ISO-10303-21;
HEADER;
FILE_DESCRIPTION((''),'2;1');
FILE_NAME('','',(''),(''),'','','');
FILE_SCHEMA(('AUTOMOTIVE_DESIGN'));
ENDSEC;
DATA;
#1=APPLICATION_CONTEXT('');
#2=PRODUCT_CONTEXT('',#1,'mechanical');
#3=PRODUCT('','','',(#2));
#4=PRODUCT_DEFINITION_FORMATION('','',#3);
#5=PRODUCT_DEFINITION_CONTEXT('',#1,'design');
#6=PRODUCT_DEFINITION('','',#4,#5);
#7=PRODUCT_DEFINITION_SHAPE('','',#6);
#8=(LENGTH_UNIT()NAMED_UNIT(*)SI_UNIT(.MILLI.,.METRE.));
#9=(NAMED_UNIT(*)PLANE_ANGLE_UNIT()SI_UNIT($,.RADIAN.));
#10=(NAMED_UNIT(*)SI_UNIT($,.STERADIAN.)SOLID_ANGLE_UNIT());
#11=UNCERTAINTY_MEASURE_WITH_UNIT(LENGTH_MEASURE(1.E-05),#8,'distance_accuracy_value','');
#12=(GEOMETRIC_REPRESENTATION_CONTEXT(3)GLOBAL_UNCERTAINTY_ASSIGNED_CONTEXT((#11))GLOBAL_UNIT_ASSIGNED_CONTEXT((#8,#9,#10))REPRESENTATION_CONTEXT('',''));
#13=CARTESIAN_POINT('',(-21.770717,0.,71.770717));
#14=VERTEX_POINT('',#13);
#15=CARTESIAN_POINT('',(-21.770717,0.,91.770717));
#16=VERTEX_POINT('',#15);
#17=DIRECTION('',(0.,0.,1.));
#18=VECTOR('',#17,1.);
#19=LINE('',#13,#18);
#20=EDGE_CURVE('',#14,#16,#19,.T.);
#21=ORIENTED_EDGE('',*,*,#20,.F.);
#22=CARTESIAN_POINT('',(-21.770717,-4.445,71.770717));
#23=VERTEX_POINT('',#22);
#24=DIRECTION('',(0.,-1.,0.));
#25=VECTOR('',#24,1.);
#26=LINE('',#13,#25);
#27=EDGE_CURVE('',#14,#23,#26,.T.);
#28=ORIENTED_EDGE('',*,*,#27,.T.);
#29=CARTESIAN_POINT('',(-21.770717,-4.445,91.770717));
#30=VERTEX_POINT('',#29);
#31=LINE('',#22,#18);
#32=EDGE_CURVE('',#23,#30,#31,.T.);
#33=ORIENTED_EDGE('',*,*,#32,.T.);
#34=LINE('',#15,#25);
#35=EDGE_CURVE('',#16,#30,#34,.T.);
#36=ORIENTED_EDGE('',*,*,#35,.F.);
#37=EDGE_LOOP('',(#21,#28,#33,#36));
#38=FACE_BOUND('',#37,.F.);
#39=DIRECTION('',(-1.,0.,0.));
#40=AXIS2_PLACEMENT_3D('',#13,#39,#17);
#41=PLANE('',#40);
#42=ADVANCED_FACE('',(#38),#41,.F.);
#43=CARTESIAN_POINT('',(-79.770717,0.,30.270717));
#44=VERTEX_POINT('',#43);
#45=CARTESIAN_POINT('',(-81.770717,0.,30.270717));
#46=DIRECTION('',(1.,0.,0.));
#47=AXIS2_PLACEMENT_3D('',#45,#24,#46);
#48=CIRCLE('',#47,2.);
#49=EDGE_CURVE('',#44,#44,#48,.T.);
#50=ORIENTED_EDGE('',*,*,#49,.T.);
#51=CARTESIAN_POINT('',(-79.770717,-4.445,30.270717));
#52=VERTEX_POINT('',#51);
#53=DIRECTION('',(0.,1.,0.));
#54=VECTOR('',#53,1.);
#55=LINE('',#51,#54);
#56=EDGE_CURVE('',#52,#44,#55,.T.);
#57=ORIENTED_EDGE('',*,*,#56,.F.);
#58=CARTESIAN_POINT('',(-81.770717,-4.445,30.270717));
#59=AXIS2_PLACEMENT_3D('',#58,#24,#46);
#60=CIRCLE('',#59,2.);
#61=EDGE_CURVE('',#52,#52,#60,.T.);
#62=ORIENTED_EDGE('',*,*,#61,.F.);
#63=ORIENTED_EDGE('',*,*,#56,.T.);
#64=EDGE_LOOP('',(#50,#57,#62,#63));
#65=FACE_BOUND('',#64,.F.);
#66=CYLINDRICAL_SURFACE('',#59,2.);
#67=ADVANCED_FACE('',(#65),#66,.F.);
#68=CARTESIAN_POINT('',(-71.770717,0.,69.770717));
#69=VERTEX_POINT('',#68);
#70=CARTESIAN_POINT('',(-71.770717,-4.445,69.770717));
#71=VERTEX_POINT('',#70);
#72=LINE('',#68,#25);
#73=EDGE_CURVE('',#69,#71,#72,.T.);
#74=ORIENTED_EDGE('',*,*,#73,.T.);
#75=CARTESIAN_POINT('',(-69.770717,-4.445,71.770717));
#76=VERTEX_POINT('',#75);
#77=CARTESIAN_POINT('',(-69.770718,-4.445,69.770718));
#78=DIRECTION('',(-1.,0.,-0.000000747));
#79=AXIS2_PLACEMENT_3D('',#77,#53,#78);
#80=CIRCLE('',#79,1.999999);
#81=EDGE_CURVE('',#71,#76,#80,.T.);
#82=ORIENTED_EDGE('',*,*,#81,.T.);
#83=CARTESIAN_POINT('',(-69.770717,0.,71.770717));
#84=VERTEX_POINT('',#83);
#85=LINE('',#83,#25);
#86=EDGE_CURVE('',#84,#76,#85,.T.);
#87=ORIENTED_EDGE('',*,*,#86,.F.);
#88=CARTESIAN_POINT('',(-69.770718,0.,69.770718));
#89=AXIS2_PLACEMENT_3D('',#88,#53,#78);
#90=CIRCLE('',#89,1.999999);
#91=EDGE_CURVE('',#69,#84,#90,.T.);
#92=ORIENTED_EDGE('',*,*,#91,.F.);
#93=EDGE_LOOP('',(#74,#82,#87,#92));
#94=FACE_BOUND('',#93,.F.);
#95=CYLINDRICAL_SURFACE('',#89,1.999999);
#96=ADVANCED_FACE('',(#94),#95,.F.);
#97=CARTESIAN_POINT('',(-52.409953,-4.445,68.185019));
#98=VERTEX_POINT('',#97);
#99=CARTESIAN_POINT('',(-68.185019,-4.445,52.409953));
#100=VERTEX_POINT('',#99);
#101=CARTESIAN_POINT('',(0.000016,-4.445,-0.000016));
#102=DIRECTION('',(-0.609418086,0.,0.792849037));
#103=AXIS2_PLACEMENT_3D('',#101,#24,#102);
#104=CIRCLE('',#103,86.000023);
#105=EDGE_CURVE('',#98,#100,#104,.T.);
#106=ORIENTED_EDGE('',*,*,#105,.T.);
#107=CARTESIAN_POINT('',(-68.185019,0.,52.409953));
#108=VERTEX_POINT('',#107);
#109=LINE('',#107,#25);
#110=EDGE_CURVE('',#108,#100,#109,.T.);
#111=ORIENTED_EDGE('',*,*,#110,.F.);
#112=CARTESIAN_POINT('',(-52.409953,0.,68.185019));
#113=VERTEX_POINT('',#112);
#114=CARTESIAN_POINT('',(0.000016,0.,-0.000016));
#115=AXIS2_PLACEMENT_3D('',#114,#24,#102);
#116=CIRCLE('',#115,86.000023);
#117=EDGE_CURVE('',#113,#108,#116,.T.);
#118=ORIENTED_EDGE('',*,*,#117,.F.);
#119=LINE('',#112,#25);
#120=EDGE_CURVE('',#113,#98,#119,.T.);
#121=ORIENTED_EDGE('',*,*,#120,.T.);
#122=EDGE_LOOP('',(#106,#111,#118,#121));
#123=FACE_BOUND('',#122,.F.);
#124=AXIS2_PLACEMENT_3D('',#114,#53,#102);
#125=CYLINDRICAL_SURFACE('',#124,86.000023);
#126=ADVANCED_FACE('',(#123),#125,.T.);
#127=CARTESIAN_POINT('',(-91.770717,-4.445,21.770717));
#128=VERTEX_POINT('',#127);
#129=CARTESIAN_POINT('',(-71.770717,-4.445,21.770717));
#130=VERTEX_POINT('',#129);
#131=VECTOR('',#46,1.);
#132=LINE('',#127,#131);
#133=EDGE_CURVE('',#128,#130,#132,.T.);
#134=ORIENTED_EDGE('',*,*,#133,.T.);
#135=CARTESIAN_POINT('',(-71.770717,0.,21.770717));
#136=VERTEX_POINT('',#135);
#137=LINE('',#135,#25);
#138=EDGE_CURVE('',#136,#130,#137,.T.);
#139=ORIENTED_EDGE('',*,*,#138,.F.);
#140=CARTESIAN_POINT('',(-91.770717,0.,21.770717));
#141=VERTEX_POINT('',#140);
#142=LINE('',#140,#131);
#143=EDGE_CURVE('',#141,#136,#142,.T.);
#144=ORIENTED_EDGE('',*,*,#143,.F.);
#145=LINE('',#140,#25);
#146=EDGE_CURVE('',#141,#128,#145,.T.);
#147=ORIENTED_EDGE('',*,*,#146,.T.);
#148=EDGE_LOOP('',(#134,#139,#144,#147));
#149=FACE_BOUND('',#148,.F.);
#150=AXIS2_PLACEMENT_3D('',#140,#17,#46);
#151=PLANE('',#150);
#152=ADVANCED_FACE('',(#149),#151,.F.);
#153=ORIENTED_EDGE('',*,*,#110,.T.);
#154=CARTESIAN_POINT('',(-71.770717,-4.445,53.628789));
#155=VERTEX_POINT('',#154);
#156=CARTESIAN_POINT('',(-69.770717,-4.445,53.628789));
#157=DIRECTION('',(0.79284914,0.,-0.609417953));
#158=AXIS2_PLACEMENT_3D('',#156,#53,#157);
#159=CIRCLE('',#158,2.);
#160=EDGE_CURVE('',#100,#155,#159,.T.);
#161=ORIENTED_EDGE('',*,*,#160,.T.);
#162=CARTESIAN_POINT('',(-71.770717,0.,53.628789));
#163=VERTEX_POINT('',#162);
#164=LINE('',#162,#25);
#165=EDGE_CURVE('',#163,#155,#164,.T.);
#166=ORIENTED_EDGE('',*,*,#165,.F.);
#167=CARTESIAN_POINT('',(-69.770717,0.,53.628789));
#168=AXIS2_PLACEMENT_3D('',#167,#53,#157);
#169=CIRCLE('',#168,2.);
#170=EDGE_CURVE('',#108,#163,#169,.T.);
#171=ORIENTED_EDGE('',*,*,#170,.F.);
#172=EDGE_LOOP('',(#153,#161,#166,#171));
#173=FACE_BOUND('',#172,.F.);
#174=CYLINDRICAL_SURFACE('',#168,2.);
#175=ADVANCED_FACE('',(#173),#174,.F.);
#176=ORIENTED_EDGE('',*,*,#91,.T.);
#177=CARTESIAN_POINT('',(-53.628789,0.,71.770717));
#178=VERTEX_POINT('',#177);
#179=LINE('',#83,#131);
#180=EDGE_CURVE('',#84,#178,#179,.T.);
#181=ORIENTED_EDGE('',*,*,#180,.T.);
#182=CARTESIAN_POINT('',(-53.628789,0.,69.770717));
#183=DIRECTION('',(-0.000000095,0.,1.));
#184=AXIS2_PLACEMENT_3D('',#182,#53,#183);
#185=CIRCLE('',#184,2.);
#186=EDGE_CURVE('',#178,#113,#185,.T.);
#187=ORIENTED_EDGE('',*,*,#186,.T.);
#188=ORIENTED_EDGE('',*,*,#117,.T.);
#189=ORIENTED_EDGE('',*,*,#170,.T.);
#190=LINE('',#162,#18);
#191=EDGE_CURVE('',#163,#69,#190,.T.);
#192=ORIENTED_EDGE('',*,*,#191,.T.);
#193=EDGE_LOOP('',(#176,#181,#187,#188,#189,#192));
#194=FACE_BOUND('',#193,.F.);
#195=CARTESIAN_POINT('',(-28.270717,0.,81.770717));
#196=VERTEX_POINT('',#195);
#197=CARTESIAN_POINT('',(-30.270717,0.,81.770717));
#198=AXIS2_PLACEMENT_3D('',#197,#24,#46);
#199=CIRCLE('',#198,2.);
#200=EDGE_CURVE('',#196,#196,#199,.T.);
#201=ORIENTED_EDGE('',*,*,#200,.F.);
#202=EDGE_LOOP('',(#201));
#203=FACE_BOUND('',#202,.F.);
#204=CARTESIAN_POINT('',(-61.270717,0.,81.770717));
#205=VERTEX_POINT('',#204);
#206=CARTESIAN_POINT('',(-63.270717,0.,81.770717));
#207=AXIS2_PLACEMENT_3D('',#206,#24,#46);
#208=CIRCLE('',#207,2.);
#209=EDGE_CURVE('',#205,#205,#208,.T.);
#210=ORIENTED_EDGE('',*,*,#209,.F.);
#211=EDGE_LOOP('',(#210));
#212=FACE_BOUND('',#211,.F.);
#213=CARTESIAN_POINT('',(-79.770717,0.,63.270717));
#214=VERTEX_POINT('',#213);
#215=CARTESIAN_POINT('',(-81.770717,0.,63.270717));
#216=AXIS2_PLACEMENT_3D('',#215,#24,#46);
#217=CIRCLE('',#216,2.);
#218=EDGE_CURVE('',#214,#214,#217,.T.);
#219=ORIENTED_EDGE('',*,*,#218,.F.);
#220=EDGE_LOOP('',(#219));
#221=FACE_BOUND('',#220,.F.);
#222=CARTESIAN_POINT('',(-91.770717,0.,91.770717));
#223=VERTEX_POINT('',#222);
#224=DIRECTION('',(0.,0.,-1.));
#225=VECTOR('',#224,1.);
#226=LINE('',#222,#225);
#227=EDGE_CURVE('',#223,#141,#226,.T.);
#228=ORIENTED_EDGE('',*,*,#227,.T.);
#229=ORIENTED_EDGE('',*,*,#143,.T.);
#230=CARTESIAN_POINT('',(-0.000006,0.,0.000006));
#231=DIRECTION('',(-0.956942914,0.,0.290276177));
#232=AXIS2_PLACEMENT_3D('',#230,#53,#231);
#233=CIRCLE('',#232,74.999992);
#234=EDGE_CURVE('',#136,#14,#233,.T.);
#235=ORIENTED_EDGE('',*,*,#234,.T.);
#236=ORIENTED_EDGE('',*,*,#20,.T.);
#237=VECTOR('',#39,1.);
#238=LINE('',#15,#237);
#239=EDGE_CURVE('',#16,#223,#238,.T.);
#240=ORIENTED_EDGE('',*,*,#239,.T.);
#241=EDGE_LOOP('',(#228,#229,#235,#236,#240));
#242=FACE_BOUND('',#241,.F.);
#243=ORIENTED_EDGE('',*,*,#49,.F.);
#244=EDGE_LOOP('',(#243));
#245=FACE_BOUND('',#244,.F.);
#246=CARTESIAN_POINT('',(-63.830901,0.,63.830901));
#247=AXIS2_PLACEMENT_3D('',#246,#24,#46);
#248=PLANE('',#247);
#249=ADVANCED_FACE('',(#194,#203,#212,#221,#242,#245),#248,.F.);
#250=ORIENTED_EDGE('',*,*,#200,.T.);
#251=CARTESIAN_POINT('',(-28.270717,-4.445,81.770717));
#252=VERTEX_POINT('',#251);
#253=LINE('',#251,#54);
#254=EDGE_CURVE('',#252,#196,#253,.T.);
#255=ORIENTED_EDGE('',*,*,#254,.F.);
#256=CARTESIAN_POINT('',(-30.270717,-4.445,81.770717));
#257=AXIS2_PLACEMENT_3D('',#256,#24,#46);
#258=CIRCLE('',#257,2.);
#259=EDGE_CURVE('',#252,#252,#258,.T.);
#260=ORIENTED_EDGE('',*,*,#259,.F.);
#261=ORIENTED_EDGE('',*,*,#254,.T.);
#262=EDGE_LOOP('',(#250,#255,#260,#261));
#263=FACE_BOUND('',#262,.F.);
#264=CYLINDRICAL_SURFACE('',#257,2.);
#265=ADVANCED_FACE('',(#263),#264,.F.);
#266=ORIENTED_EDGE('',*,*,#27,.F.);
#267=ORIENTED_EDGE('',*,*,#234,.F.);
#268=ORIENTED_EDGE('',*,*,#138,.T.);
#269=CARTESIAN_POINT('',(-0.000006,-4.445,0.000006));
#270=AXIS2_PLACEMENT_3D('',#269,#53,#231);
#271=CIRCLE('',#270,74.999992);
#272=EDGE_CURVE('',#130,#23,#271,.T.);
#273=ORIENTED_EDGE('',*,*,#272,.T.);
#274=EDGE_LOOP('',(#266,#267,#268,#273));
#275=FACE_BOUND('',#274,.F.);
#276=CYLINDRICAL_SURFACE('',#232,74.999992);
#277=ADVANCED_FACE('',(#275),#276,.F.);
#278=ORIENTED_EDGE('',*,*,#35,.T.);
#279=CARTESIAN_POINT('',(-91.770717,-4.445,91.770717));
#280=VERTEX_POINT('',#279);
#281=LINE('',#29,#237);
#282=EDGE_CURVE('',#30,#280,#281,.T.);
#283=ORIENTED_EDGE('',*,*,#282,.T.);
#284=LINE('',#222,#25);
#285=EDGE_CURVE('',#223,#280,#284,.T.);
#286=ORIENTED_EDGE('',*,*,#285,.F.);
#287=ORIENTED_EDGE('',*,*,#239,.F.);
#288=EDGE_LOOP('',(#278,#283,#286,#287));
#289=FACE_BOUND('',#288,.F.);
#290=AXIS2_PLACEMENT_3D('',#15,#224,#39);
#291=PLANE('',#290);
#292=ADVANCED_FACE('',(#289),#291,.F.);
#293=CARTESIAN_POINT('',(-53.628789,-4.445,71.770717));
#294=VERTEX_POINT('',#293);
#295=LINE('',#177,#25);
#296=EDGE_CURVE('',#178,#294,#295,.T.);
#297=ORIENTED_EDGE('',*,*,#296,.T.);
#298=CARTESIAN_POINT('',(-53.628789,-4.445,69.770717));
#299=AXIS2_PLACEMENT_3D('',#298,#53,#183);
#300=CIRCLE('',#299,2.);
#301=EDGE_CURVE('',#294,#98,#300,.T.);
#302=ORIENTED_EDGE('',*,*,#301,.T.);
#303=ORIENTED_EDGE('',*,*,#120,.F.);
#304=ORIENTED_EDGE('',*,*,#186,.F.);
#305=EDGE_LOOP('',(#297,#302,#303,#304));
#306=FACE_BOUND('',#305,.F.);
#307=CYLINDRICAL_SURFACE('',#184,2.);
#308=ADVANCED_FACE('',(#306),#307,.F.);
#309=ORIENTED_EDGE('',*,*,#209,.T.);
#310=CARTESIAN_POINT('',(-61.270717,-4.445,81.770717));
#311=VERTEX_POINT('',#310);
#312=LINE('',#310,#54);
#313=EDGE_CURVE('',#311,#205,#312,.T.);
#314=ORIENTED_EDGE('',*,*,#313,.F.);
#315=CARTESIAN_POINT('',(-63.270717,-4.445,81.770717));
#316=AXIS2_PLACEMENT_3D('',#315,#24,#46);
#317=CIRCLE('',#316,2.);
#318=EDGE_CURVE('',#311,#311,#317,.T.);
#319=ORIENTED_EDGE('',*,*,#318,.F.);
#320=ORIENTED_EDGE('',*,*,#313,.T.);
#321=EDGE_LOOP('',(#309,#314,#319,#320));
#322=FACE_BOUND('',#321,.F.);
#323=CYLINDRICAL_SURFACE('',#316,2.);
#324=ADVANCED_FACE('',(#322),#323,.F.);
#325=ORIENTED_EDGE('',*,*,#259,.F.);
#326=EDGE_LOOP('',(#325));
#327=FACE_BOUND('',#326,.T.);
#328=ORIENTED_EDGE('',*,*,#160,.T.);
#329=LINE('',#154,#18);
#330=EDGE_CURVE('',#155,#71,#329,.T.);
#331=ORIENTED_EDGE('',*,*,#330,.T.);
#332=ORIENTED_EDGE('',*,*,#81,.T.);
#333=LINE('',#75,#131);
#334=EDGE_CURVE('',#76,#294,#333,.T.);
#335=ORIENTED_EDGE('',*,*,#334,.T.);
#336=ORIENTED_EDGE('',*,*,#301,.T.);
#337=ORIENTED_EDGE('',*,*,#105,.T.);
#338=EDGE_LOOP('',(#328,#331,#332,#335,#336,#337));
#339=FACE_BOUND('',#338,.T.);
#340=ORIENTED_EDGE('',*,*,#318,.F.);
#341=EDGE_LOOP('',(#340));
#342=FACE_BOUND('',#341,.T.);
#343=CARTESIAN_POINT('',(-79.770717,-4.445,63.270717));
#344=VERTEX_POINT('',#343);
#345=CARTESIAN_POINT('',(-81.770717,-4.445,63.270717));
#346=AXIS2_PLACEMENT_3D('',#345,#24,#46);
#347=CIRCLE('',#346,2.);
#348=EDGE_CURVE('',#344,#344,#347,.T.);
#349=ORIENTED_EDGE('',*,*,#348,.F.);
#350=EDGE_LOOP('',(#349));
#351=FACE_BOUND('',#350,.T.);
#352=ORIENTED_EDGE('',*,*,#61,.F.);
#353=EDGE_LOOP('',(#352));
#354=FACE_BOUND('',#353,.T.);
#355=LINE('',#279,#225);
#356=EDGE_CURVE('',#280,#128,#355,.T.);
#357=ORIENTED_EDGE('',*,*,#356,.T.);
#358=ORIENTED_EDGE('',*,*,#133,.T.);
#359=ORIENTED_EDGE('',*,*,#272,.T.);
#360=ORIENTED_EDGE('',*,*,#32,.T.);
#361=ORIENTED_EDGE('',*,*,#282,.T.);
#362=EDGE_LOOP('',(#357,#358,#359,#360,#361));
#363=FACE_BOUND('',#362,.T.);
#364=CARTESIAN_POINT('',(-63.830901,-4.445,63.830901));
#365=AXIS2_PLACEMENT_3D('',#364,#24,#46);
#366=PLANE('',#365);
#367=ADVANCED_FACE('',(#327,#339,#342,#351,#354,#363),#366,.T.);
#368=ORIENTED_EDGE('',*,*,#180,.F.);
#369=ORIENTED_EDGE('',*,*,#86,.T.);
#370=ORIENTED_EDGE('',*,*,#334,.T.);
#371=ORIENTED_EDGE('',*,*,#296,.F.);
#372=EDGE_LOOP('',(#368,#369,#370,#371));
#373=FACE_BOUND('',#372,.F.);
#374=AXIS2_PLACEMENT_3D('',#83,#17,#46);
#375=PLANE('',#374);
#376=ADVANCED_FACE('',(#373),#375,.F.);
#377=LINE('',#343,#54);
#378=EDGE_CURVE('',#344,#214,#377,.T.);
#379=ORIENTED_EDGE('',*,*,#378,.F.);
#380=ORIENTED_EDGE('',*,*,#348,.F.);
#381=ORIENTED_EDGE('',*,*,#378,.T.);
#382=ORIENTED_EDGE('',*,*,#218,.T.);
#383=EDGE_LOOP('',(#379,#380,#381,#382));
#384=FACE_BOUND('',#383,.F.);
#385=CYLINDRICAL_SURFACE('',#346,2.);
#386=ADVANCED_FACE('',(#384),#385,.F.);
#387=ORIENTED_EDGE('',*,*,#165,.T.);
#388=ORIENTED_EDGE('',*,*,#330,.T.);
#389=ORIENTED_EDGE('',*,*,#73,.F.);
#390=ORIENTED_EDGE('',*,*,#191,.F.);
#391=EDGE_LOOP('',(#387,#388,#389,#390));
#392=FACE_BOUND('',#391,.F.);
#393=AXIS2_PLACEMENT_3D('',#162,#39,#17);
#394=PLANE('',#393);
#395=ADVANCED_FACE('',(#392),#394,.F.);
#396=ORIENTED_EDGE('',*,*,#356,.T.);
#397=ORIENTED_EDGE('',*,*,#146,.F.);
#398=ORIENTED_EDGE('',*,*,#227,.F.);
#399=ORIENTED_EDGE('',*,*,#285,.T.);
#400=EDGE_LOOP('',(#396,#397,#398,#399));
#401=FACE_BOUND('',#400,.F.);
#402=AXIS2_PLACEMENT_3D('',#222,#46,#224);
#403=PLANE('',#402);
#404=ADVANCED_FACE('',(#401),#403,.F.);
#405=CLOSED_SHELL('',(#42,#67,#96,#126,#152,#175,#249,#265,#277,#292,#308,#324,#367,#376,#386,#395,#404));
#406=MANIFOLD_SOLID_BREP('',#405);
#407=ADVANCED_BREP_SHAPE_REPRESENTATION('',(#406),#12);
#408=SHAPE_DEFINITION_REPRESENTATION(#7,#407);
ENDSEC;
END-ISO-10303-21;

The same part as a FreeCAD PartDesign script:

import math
import FreeCAD as App
import Part
import Sketcher
from FreeCAD import Vector

doc = App.newDocument("Part")
body = doc.addObject("PartDesign::Body", "Body")

sketch1 = doc.addObject("Sketcher::SketchObject", "Sketch")
body.addObject(sketch1)
sketch1.AttachmentSupport = (doc.XZ_Plane, [""])
sketch1.MapMode = "FlatFace"
sketch1.addGeometry(Part.LineSegment(Vector(-91.8, 21.8, 0), Vector(-71.8, 21.8, 0)), False)
sketch1.addGeometry(Part.ArcOfCircle(Part.Circle(Vector(0, 0, 0), Vector(0, 0, 1), 75), math.radians(107), math.radians(163)), False)
sketch1.addGeometry(Part.LineSegment(Vector(-21.8, 71.8, 0), Vector(-21.8, 91.8, 0)), False)
sketch1.addGeometry(Part.LineSegment(Vector(-21.8, 91.8, 0), Vector(-91.8, 91.8, 0)), False)
sketch1.addGeometry(Part.LineSegment(Vector(-91.8, 91.8, 0), Vector(-91.8, 21.8, 0)), False)
sketch1.addGeometry(Part.ArcOfCircle(Part.Circle(Vector(-53.6, 69.8, 0), Vector(0, 0, 1), 2), math.radians(-52), math.radians(90)), False)
sketch1.addGeometry(Part.ArcOfCircle(Part.Circle(Vector(0, 0, 0), Vector(0, 0, 1), 86), math.radians(127.55), math.radians(142.45)), False)
sketch1.addGeometry(Part.ArcOfCircle(Part.Circle(Vector(-69.8, 53.6, 0), Vector(0, 0, 1), 2), math.radians(180), math.radians(322)), False)
sketch1.addGeometry(Part.LineSegment(Vector(-71.8, 53.6, 0), Vector(-71.8, 69.8, 0)), False)
sketch1.addGeometry(Part.ArcOfCircle(Part.Circle(Vector(-69.8, 69.8, 0), Vector(0, 0, 1), 2), math.radians(90), math.radians(180)), False)
sketch1.addGeometry(Part.LineSegment(Vector(-69.8, 71.8, 0), Vector(-53.6, 71.8, 0)), False)
sketch1.addConstraint(Sketcher.Constraint("Coincident", 0, 2, 1, 2))
sketch1.addConstraint(Sketcher.Constraint("Coincident", 1, 1, 2, 1))
sketch1.addConstraint(Sketcher.Constraint("Coincident", 2, 2, 3, 1))
sketch1.addConstraint(Sketcher.Constraint("Coincident", 3, 2, 4, 1))
sketch1.addConstraint(Sketcher.Constraint("Coincident", 4, 2, 0, 1))
sketch1.addConstraint(Sketcher.Constraint("Tangent", 5, 1, 6, 1))
sketch1.addConstraint(Sketcher.Constraint("Tangent", 6, 2, 7, 2))
sketch1.addConstraint(Sketcher.Constraint("Tangent", 7, 1, 8, 1))
sketch1.addConstraint(Sketcher.Constraint("Tangent", 8, 2, 9, 2))
sketch1.addConstraint(Sketcher.Constraint("Tangent", 9, 1, 10, 1))
sketch1.addConstraint(Sketcher.Constraint("Tangent", 10, 2, 5, 2))
sketch1.addConstraint(Sketcher.Constraint("Horizontal", 0))
sketch1.addConstraint(Sketcher.Constraint("Vertical", 2))
sketch1.addConstraint(Sketcher.Constraint("Horizontal", 3))
sketch1.addConstraint(Sketcher.Constraint("Vertical", 4))
sketch1.addConstraint(Sketcher.Constraint("Vertical", 8))
sketch1.addConstraint(Sketcher.Constraint("Horizontal", 10))
sketch1.addConstraint(Sketcher.Constraint("Coincident", 1, 3, -1, 1))
sketch1.addConstraint(Sketcher.Constraint("Equal", 5, 7))
sketch1.addConstraint(Sketcher.Constraint("Equal", 7, 9))
sketch1.addConstraint(Sketcher.Constraint("Horizontal", 1, 1, 9, 1))
sketch1.addConstraint(Sketcher.Constraint("Vertical", 0, 2, 7, 1))
sketch1.addConstraint(Sketcher.Constraint("Equal", 0, 2))
sketch1.addConstraint(Sketcher.Constraint("Equal", 3, 4))
sketch1.addConstraint(Sketcher.Constraint("Equal", 10, 8))
sketch1.addConstraint(Sketcher.Constraint("Radius", 5, 2.0))
sketch1.addConstraint(Sketcher.Constraint("DistanceX", 0, 1, 0, 2, 20.0))
sketch1.addConstraint(Sketcher.Constraint("DistanceX", 3, 2, 3, 1, 70.0))
sketch1.addConstraint(Sketcher.Constraint("Radius", 1, 74.999992))
sketch1.addConstraint(Sketcher.Constraint("Radius", 6, 86.000023))
sketch1.addConstraint(Sketcher.Constraint("DistanceX", 10, 1, 10, 2, 16.141928))
pad1 = doc.addObject("PartDesign::Pad", "Pad")
body.addObject(pad1)
pad1.Profile = sketch1
pad1.Length = 4.445

sketch2 = doc.addObject("Sketcher::SketchObject", "Sketch001")
body.addObject(sketch2)
sketch2.AttachmentSupport = (doc.XZ_Plane, [""])
sketch2.MapMode = "FlatFace"
sketch2.AttachmentOffset = App.Placement(Vector(0, 0, 4.445), App.Rotation())
sketch2.addGeometry(Part.Circle(Vector(-63.3, 81.8, 0), Vector(0, 0, 1), 2), False)
sketch2.addGeometry(Part.Circle(Vector(-30.3, 81.8, 0), Vector(0, 0, 1), 2), False)
sketch2.addGeometry(Part.Circle(Vector(-81.8, 63.3, 0), Vector(0, 0, 1), 2), False)
sketch2.addGeometry(Part.Circle(Vector(-81.8, 30.3, 0), Vector(0, 0, 1), 2), False)
sketch2.addConstraint(Sketcher.Constraint("Equal", 0, 1))
sketch2.addConstraint(Sketcher.Constraint("Equal", 1, 2))
sketch2.addConstraint(Sketcher.Constraint("Equal", 2, 3))
sketch2.addConstraint(Sketcher.Constraint("Horizontal", 0, 3, 1, 3))
sketch2.addConstraint(Sketcher.Constraint("Vertical", 2, 3, 3, 3))
sketch2.addConstraint(Sketcher.Constraint("Diameter", 0, 4.0))
sketch2.addConstraint(Sketcher.Constraint("DistanceX", 0, 3, 1, 3, 33.0))
sketch2.addConstraint(Sketcher.Constraint("DistanceY", 3, 3, 2, 3, 33.0))
sketch2.addConstraint(Sketcher.Constraint("DistanceX", 2, 3, 0, 3, 18.5))
sketch2.addConstraint(Sketcher.Constraint("DistanceY", 2, 3, 0, 3, 18.5))
sketch2.addConstraint(Sketcher.Constraint("DistanceX", 0, 3, -1, 1, 63.270717))
sketch2.addConstraint(Sketcher.Constraint("DistanceY", -1, 1, 0, 3, 81.770717))
pocket1 = doc.addObject("PartDesign::Pocket", "Pocket")
body.addObject(pocket1)
pocket1.Profile = sketch2
pocket1.Type = "ThroughAll"

doc.recompute()
